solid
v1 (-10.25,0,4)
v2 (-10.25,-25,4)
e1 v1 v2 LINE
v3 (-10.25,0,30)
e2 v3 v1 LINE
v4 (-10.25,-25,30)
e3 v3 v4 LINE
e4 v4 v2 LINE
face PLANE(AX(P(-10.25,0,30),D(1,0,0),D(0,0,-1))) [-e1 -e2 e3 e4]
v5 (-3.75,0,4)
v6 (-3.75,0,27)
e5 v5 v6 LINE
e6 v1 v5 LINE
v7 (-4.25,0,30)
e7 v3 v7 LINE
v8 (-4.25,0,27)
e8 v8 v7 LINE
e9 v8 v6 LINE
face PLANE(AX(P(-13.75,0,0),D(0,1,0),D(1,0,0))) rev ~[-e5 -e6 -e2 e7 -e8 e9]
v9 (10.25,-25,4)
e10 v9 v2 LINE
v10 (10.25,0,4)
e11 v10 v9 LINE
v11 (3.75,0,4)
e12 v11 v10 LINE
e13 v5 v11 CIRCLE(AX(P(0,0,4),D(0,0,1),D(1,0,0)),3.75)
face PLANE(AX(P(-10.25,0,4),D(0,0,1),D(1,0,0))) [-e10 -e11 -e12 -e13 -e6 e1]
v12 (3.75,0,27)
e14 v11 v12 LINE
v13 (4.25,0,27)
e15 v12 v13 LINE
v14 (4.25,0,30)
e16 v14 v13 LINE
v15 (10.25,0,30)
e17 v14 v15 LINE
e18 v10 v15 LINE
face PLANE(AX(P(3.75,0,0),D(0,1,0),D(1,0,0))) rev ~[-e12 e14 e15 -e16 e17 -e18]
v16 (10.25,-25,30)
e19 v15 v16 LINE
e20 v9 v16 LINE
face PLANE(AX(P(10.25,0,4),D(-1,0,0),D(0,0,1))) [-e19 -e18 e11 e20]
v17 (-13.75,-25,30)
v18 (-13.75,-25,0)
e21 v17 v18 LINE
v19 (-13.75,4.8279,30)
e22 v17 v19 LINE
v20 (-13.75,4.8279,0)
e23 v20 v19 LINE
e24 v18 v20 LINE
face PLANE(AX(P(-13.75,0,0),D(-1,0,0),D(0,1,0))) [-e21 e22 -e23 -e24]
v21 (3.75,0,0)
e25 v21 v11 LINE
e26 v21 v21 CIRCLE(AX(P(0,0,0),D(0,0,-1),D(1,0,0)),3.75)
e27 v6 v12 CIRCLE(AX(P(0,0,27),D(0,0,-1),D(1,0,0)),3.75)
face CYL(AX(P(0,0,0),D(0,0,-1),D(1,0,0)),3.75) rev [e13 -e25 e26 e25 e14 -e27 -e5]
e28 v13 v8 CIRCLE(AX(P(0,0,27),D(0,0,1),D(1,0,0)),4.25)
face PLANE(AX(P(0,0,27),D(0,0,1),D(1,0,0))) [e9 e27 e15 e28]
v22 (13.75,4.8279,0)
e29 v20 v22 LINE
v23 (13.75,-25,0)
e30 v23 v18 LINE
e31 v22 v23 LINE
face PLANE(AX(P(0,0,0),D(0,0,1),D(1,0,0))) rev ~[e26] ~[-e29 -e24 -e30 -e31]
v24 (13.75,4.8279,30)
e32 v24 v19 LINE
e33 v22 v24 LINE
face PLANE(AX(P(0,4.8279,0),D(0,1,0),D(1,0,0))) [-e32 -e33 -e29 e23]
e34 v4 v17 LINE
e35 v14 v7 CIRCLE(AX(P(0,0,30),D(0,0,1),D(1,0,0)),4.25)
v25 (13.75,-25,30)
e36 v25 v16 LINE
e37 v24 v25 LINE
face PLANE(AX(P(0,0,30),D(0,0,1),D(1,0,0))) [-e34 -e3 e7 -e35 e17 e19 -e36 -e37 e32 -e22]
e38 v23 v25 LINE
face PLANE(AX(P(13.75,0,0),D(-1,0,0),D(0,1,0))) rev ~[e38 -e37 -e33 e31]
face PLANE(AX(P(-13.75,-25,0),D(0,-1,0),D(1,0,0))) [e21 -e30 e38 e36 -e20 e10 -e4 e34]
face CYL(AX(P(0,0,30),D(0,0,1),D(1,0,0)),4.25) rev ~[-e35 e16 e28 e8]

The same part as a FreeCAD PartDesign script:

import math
import FreeCAD as App
import Part
import Sketcher
Q = App.Units.Quantity


def add_polygon(sketch, points):
    """Adds a closed chain of lines whose ends are joined by coincident constraints."""
    first, n = sketch.GeometryCount, len(points)
    for a, b in zip(points, points[1:] + points[:1]):
        sketch.addGeometry(Part.LineSegment(App.Vector(*a, 0), App.Vector(*b, 0)), False)
    for i in range(n):
        sketch.addConstraint(Sketcher.Constraint("Coincident", first + i, 2, first + (i + 1) % n, 1))

doc = App.newDocument("Part")
params = doc.addObject("Spreadsheet::Sheet", "Params")
for row, (alias, value) in enumerate([
    ("sketch1_radius", "3.75 mm"),
    ("sketch1_width", "10 mm"),
    ("pad1_length", "30 mm"),
    ("sketch2_diameter", "8.5 mm"),
    ("pocket1_length", "3 mm"),
    ("sketch3_width", "3.5 mm"),
    ("sketch3_height", "30 mm"),
    ("sketch3_height2", "26 mm"),
    ("sketch3_width2", "27.5 mm"),
    ("pad2_length", "25 mm"),
    ("sketch4_diameter", "7.5 mm"),
    ("pocket2_length", "25 mm"),
], start=1):
    params.set(f"A{row}", alias)
    params.set(f"B{row}", "=" + value)
    params.setAlias(f"B{row}", alias)

body = doc.addObject("PartDesign::Body", "Body")

sketch1 = body.newObject("Sketcher::SketchObject", "Sketch")
sketch1.AttachmentSupport = (doc.getObject("XY_Plane"), [""])
sketch1.MapMode = "FlatFace"
sketch1.addGeometry([
    Part.LineSegment(App.Vector(3.8, 0, 0), App.Vector(13.8, 0, 0)),
    Part.LineSegment(App.Vector(13.8, 0, 0), App.Vector(13.8, 4.8, 0)),
    Part.LineSegment(App.Vector(13.8, 4.8, 0), App.Vector(-13.8, 4.8, 0)),
    Part.LineSegment(App.Vector(-13.8, 4.8, 0), App.Vector(-13.8, 0, 0)),
    Part.LineSegment(App.Vector(-13.8, 0, 0), App.Vector(-3.8, 0, 0)),
    Part.ArcOfCircle(Part.Circle(App.Vector(0, 0, 0), App.Vector(0, 0, 1), 3.8), math.radians(0), math.radians(180)),
], False)
sketch1.addConstraint([
    Sketcher.Constraint("Coincident", 0, 2, 1, 1),
    Sketcher.Constraint("Coincident", 1, 2, 2, 1),
    Sketcher.Constraint("Coincident", 2, 2, 3, 1),
    Sketcher.Constraint("Coincident", 3, 2, 4, 1),
    Sketcher.Constraint("Coincident", 4, 2, 5, 2),
    Sketcher.Constraint("Coincident", 5, 1, 0, 1),
    Sketcher.Constraint("Horizontal", 0),
    Sketcher.Constraint("Vertical", 1),
    Sketcher.Constraint("Horizontal", 2),
    Sketcher.Constraint("Vertical", 3),
    Sketcher.Constraint("Horizontal", 4),
    Sketcher.Constraint("Coincident", 5, 3, -1, 1),
    Sketcher.Constraint("Symmetric", 0, 2, 3, 2, -1, 1),
    Sketcher.Constraint("PointOnObject", 0, 2, -1),
    Sketcher.Constraint("Radius", 5, Q("3.75 mm")),
    Sketcher.Constraint("DistanceX", 0, 1, 0, 2, Q("10 mm")),
    Sketcher.Constraint("DistanceY", 1, 1, 1, 2, Q("4.828 mm")),
])
sketch1.setExpression("Constraints[14]", "Params.sketch1_radius")
sketch1.setExpression("Constraints[15]", "Params.sketch1_width")
pad1 = body.newObject("PartDesign::Pad", "Pad")
pad1.Profile = sketch1
pad1.setExpression("Length", "Params.pad1_length")

sketch2 = body.newObject("Sketcher::SketchObject", "Sketch001")
sketch2.AttachmentSupport = (doc.getObject("XY_Plane"), [""])
sketch2.MapMode = "FlatFace"
sketch2.AttachmentOffset = App.Placement(App.Vector(0, 0, 30), App.Rotation())
sketch2.addGeometry(Part.Circle(App.Vector(0, 0, 0), App.Vector(0, 0, 1), 4.2), False)
sketch2.addConstraint([
    Sketcher.Constraint("Coincident", 0, 3, -1, 1),
    Sketcher.Constraint("Diameter", 0, Q("8.5 mm")),
])
sketch2.setExpression("Constraints[1]", "Params.sketch2_diameter")
pocket1 = body.newObject("PartDesign::Pocket", "Pocket")
pocket1.Profile = sketch2
pocket1.setExpression("Length", "Params.pocket1_length")

sketch3 = body.newObject("Sketcher::SketchObject", "Sketch002")
sketch3.AttachmentSupport = (doc.getObject("XZ_Plane"), [""])
sketch3.MapMode = "FlatFace"
add_polygon(sketch3, [(-13.8, 0), (13.8, 0), (13.8, 30), (10.2, 30), (10.2, 4), (-10.2, 4), (-10.2, 30), (-13.8, 30)])
sketch3.addConstraint([
    Sketcher.Constraint("Horizontal", 0),
    Sketcher.Constraint("Vertical", 1),
    Sketcher.Constraint("Horizontal", 2),
    Sketcher.Constraint("Vertical", 3),
    Sketcher.Constraint("Horizontal", 4),
    Sketcher.Constraint("Vertical", 5),
    Sketcher.Constraint("Horizontal", 6),
    Sketcher.Constraint("Vertical", 7),
    Sketcher.Constraint("Symmetric", 0, 2, 7, 2, -1, 1),
    Sketcher.Constraint("Symmetric", 2, 2, 5, 2, -2),
    Sketcher.Constraint("DistanceX", 2, 2, 2, 1, Q("3.5 mm")),
    Sketcher.Constraint("DistanceY", 1, 1, 1, 2, Q("30 mm")),
    Sketcher.Constraint("DistanceY", 3, 2, 3, 1, Q("26 mm")),
    Sketcher.Constraint("DistanceX", 0, 1, 0, 2, Q("27.5 mm")),
])
sketch3.setExpression("Constraints[18]", "Params.sketch3_width")
sketch3.setExpression("Constraints[19]", "Params.sketch3_height")
sketch3.setExpression("Constraints[20]", "Params.sketch3_height2")
sketch3.setExpression("Constraints[21]", "Params.sketch3_width2")
pad2 = body.newObject("PartDesign::Pad", "Pad001")
pad2.Profile = sketch3
pad2.setExpression("Length", "Params.pad2_length")

sketch4 = body.newObject("Sketcher::SketchObject", "Sketch003")
sketch4.AttachmentSupport = (doc.getObject("XY_Plane"), [""])
sketch4.MapMode = "FlatFace"
sketch4.AttachmentOffset = App.Placement(App.Vector(0, 0, 4), App.Rotation())
sketch4.addGeometry(Part.Circle(App.Vector(0, 0, 0), App.Vector(0, 0, 1), 3.8), False)
sketch4.addConstraint([
    Sketcher.Constraint("Coincident", 0, 3, -1, 1),
    Sketcher.Constraint("Diameter", 0, Q("7.5 mm")),
])
sketch4.setExpression("Constraints[1]", "Params.sketch4_diameter")
pocket2 = body.newObject("PartDesign::Pocket", "Pocket001")
pocket2.Profile = sketch4
pocket2.setExpression("Length", "Params.pocket2_length")

doc.recompute()
